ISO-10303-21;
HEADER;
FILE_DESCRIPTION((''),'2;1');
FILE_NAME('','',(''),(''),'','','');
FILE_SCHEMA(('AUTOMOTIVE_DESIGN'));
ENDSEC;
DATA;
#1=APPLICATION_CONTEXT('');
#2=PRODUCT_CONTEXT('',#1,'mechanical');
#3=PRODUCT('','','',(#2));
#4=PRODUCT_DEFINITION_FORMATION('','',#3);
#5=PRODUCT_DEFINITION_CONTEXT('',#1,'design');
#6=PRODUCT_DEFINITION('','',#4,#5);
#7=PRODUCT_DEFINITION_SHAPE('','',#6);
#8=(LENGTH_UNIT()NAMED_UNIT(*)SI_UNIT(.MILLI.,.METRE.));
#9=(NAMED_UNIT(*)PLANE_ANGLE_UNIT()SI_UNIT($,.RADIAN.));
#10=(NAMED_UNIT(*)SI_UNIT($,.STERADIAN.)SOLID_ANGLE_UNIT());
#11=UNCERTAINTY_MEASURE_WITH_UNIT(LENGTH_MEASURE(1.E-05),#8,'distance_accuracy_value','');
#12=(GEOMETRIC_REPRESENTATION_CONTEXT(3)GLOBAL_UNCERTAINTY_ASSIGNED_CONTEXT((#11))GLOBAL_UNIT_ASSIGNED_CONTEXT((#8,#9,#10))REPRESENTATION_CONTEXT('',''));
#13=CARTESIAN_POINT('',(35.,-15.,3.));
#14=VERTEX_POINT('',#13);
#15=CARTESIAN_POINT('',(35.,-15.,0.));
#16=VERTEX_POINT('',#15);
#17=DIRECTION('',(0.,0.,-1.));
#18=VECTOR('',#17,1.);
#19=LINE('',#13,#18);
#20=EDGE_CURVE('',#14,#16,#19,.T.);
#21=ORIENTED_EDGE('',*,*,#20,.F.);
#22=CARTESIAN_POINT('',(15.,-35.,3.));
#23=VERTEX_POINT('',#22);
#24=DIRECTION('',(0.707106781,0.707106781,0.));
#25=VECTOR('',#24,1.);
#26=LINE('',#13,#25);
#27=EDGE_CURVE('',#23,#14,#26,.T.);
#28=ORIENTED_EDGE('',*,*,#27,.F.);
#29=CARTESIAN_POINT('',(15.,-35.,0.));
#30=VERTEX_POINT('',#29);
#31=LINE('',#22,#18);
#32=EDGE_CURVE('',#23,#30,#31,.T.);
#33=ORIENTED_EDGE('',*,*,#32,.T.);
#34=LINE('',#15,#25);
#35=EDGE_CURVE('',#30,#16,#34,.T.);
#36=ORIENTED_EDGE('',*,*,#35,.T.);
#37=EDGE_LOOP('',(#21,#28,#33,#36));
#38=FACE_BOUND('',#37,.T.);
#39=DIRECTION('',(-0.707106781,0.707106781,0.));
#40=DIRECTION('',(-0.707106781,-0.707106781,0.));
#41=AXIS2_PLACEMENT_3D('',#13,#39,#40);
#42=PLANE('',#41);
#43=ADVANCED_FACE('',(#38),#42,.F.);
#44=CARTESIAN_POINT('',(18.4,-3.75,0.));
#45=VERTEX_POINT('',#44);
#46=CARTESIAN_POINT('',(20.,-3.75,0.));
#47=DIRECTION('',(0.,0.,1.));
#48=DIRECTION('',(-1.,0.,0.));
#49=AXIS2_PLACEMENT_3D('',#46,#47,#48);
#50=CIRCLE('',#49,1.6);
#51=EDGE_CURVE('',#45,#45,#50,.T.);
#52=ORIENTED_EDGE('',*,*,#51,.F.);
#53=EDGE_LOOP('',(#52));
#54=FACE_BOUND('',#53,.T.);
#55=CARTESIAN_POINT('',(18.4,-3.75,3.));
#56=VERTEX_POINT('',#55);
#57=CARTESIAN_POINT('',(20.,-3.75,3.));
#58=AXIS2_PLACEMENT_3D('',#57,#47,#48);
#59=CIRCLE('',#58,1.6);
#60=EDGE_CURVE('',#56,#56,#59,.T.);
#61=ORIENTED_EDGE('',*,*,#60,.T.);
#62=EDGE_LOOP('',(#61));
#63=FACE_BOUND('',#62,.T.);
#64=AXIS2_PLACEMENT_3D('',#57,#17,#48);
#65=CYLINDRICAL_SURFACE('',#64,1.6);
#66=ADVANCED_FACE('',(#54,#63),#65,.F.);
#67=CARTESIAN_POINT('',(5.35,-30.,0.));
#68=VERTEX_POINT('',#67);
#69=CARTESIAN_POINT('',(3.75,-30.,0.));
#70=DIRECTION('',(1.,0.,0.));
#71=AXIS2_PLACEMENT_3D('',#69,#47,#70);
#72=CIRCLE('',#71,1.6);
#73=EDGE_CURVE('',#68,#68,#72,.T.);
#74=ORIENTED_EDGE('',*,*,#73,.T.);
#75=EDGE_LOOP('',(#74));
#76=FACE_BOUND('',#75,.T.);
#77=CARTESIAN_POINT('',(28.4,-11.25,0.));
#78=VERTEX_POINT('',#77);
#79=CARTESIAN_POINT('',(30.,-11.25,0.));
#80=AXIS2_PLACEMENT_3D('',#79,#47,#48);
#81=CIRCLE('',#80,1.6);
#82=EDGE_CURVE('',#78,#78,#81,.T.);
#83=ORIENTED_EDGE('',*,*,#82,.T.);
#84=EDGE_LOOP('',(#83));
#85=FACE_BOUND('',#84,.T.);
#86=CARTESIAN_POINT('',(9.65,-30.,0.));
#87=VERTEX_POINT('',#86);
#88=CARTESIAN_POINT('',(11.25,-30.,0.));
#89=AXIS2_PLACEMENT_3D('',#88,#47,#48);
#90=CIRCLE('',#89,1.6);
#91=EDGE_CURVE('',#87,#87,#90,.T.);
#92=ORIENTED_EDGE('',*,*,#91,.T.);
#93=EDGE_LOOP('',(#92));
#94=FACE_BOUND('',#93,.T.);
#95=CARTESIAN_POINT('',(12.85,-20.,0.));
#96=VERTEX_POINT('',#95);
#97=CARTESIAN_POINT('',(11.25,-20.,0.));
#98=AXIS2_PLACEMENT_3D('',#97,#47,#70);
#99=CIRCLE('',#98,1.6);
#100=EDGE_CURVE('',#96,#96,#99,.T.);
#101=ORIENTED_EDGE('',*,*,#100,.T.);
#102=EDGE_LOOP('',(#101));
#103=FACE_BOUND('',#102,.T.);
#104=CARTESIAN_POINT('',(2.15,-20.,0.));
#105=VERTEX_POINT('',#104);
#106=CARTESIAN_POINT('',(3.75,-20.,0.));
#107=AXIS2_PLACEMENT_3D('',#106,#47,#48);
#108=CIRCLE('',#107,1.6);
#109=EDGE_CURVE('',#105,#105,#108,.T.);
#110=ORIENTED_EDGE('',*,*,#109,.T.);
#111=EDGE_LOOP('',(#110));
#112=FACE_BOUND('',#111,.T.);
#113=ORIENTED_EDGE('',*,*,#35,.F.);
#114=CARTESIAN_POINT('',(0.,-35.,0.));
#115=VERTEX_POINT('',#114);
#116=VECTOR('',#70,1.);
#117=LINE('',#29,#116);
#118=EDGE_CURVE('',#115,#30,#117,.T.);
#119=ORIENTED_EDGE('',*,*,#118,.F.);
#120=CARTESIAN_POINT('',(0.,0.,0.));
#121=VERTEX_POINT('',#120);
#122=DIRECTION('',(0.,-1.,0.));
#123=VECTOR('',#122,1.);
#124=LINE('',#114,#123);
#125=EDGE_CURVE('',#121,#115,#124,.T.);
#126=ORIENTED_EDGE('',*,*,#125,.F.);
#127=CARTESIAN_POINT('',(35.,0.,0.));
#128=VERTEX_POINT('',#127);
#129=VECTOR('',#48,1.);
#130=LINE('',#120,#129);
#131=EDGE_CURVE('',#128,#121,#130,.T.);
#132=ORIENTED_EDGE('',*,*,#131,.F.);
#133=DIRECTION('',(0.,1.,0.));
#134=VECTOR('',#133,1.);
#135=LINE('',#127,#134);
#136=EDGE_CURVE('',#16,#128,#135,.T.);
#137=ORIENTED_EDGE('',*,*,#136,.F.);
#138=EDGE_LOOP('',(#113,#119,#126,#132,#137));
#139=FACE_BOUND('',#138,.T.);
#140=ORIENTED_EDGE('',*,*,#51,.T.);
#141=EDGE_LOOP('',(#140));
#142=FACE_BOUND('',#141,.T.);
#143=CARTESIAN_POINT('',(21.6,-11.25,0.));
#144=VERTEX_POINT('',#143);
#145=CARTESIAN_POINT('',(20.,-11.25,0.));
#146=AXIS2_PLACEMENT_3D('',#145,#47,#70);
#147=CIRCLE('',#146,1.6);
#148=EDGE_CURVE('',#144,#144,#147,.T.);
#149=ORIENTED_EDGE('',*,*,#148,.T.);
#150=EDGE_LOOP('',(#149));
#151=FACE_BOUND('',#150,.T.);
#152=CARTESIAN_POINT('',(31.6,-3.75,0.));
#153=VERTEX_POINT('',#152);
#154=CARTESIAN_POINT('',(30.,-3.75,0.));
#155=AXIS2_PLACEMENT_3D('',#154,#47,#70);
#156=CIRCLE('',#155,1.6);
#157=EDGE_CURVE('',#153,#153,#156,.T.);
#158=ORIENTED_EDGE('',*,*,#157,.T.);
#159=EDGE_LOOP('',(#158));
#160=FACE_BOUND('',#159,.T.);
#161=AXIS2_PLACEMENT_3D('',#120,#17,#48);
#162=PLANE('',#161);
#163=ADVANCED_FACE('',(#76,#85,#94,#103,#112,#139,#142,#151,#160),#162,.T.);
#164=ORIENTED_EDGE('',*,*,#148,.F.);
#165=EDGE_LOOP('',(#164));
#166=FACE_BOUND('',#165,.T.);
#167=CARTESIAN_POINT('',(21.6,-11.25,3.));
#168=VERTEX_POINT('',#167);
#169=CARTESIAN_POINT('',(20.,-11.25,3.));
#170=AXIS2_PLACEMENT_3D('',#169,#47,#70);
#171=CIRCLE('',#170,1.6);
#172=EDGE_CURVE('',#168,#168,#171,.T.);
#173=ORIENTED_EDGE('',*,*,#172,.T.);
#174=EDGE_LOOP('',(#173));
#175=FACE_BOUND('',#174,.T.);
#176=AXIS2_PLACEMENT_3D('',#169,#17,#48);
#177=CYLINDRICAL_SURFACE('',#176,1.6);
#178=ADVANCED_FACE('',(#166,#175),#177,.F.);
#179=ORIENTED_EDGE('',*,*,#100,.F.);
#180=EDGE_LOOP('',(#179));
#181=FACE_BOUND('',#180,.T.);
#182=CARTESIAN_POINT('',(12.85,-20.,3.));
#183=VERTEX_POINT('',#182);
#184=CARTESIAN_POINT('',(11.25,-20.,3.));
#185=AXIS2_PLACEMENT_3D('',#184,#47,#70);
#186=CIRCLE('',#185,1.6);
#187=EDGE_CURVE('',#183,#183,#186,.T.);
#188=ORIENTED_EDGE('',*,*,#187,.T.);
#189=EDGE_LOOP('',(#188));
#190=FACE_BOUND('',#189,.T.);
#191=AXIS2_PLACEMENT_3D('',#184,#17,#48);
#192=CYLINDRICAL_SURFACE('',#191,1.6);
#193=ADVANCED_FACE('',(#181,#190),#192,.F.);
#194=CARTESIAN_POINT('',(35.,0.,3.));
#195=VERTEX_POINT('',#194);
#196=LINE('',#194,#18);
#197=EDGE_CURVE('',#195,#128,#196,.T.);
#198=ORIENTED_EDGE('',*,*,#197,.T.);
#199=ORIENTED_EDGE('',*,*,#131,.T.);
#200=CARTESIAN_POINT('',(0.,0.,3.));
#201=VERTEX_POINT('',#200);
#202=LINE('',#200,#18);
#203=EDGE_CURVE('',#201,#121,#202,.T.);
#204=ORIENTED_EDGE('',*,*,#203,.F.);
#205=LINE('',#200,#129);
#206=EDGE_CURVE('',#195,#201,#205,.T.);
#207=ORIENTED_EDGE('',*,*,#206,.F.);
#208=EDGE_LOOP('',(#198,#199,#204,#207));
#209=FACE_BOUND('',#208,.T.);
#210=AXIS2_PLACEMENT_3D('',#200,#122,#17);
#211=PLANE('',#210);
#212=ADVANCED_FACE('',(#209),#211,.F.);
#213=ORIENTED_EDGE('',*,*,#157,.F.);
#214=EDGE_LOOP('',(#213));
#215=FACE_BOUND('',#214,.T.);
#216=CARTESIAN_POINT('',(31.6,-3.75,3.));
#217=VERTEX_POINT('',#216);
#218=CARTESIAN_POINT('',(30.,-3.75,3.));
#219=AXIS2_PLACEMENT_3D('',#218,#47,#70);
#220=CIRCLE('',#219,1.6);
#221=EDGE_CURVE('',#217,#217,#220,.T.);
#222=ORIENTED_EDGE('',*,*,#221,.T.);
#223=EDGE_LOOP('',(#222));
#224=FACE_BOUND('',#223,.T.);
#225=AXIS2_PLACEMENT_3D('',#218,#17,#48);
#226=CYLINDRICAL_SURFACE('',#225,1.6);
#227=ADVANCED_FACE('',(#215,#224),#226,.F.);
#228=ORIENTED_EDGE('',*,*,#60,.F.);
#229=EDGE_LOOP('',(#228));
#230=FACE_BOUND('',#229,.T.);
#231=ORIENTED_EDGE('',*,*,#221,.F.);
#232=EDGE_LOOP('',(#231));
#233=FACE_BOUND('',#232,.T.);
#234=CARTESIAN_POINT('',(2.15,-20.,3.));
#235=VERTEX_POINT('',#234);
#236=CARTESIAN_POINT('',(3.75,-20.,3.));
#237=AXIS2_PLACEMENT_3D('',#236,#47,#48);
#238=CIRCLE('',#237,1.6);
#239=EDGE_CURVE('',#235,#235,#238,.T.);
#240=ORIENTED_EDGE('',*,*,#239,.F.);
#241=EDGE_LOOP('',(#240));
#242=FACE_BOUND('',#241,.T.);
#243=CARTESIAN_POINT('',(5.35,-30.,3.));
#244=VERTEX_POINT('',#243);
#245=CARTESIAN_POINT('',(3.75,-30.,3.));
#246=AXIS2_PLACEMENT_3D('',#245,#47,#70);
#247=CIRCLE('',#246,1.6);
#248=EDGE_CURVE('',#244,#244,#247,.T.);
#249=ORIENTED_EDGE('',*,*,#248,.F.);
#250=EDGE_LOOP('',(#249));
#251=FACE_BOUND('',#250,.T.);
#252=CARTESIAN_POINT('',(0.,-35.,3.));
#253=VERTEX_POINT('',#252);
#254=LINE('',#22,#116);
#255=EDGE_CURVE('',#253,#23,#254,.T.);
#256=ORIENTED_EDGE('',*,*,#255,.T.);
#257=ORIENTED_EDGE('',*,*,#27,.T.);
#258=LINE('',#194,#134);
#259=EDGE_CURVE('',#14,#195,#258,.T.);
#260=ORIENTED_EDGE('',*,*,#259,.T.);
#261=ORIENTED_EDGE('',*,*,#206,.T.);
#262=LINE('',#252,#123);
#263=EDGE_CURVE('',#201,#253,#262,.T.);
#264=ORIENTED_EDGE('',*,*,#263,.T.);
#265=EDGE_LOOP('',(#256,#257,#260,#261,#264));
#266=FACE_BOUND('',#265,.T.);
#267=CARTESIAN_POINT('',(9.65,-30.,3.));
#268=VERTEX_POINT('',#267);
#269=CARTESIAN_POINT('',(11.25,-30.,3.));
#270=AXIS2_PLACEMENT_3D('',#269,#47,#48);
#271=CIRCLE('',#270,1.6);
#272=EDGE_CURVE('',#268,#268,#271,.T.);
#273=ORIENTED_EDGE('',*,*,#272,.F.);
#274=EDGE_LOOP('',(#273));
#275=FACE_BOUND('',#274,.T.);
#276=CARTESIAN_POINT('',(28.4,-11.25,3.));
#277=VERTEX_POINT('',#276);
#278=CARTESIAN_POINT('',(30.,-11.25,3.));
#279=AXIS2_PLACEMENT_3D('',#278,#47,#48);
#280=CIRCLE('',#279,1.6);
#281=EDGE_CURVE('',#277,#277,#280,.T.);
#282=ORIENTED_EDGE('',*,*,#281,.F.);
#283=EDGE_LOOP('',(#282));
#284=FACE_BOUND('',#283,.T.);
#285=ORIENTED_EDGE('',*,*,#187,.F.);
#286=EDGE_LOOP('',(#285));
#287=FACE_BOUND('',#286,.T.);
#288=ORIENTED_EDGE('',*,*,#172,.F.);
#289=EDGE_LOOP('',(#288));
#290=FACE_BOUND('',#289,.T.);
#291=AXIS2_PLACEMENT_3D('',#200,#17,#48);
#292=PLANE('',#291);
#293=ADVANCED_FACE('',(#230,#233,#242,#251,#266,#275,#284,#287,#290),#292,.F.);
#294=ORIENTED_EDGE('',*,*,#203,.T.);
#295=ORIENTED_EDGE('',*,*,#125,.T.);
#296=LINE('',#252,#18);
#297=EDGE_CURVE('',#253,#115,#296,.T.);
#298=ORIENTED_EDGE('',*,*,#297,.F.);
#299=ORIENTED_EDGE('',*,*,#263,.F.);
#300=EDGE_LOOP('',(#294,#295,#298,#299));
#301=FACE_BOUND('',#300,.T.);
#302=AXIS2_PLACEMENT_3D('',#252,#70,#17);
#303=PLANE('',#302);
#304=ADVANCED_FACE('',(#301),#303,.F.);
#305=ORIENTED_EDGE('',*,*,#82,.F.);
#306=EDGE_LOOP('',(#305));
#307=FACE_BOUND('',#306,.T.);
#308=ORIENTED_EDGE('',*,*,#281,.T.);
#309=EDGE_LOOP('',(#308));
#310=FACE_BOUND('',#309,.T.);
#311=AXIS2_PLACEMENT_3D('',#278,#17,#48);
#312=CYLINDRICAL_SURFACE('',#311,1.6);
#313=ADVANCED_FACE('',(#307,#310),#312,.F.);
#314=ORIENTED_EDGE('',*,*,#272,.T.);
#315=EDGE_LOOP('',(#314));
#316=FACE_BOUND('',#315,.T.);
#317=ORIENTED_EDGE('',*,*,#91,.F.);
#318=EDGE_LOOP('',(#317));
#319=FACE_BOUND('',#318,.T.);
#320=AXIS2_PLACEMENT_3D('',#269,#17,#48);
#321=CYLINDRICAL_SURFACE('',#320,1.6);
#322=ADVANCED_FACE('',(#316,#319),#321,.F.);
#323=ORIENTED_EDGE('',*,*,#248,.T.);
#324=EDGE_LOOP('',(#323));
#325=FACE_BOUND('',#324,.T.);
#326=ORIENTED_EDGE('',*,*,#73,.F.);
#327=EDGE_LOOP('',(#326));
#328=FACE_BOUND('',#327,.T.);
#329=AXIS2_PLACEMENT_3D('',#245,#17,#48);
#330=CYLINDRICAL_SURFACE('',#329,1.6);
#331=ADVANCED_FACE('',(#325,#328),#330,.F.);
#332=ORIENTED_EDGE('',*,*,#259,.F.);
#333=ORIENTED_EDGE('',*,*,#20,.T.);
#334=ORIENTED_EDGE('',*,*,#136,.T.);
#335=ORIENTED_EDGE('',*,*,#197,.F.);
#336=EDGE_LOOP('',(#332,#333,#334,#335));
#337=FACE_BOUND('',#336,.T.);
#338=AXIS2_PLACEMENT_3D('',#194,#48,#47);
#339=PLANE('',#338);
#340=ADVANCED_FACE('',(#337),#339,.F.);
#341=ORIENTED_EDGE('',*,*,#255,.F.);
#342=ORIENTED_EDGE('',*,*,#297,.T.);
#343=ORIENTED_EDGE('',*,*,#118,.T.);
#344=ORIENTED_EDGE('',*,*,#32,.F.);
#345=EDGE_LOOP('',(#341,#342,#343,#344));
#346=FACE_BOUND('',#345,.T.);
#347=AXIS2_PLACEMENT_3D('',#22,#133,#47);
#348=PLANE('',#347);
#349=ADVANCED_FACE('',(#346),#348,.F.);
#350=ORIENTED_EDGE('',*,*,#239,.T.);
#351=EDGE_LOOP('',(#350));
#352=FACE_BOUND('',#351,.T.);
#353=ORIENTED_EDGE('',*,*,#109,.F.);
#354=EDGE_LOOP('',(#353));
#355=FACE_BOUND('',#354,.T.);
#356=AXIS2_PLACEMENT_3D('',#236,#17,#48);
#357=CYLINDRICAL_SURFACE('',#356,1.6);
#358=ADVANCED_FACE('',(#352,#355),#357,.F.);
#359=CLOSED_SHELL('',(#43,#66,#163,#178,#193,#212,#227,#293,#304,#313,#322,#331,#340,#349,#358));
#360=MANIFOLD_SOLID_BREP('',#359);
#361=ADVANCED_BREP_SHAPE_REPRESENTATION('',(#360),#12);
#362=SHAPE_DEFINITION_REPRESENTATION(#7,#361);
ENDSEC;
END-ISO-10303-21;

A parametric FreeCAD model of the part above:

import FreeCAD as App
import Part
import Sketcher

V = App.Vector
Q = App.Units.Quantity

doc = App.newDocument("Part")
body = doc.addObject("PartDesign::Body", "Body")

sketch1 = doc.addObject("Sketcher::SketchObject", "Sketch")
body.addObject(sketch1)
sketch1.AttachmentSupport = (doc.XY_Plane, [""])
sketch1.MapMode = "FlatFace"
sketch1.addGeometry([
    Part.LineSegment(V(35, 0, 0), V(0, 0, 0)),
    Part.LineSegment(V(0, 0, 0), V(0, -35, 0)),
    Part.LineSegment(V(0, -35, 0), V(15, -35, 0)),
    Part.LineSegment(V(15, -35, 0), V(35, -15, 0)),
    Part.LineSegment(V(35, -15, 0), V(35, 0, 0)),
    Part.Circle(V(11.25, -30, 0), V(0, 0, 1), 1.6),
    Part.Circle(V(3.75, -30, 0), V(0, 0, 1), 1.6),
    Part.Circle(V(11.25, -20, 0), V(0, 0, 1), 1.6),
    Part.Circle(V(3.75, -20, 0), V(0, 0, 1), 1.6),
    Part.Circle(V(30, -11.25, 0), V(0, 0, 1), 1.6),
    Part.Circle(V(20, -11.25, 0), V(0, 0, 1), 1.6),
    Part.Circle(V(30, -3.75, 0), V(0, 0, 1), 1.6),
    Part.Circle(V(20, -3.75, 0), V(0, 0, 1), 1.6),
], False)
sketch1.addConstraint([
    Sketcher.Constraint("Coincident", 0, 2, 1, 1),
    Sketcher.Constraint("Coincident", 1, 2, 2, 1),
    Sketcher.Constraint("Coincident", 2, 2, 3, 1),
    Sketcher.Constraint("Coincident", 3, 2, 4, 1),
    Sketcher.Constraint("Coincident", 4, 2, 0, 1),
    Sketcher.Constraint("Horizontal", 0),
    Sketcher.Constraint("Vertical", 1),
    Sketcher.Constraint("Horizontal", 2),
    Sketcher.Constraint("Vertical", 4),
    Sketcher.Constraint("Coincident", 0, 2, -1, 1),
    Sketcher.Constraint("Equal", 5, 6),
    Sketcher.Constraint("Equal", 6, 7),
    Sketcher.Constraint("Equal", 7, 8),
    Sketcher.Constraint("Equal", 8, 9),
    Sketcher.Constraint("Equal", 9, 10),
    Sketcher.Constraint("Equal", 10, 11),
    Sketcher.Constraint("Equal", 11, 12),
    Sketcher.Constraint("Horizontal", 5, 3, 6, 3),
    Sketcher.Constraint("Horizontal", 7, 3, 8, 3),
    Sketcher.Constraint("Horizontal", 9, 3, 10, 3),
    Sketcher.Constraint("Horizontal", 11, 3, 12, 3),
    Sketcher.Constraint("Vertical", 5, 3, 7, 3),
    Sketcher.Constraint("Vertical", 6, 3, 8, 3),
    Sketcher.Constraint("Vertical", 9, 3, 11, 3),
    Sketcher.Constraint("Vertical", 10, 3, 12, 3),
    Sketcher.Constraint("Equal", 0, 1),
    Sketcher.Constraint("Equal", 2, 4),
    Sketcher.Constraint("Diameter", 5, Q("3.2 mm")),
    Sketcher.Constraint("DistanceX", 0, 2, 0, 1, Q("35 mm")),
    Sketcher.Constraint("DistanceX", 2, 1, 2, 2, Q("15 mm")),
    Sketcher.Constraint("DistanceY", 5, 3, -1, 1, Q("30 mm")),
    Sketcher.Constraint("DistanceY", 7, 3, -1, 1, Q("20 mm")),
    Sketcher.Constraint("DistanceX", -1, 1, 9, 3, Q("30 mm")),
    Sketcher.Constraint("DistanceX", -1, 1, 10, 3, Q("20 mm")),
    Sketcher.Constraint("DistanceX", 6, 3, 5, 3, Q("7.5 mm")),
    Sketcher.Constraint("DistanceY", 9, 3, 11, 3, Q("7.5 mm")),
    Sketcher.Constraint("DistanceX", -1, 1, 5, 3, Q("11.25 mm")),
    Sketcher.Constraint("DistanceY", 9, 3, -1, 1, Q("11.25 mm")),
])
pad1 = doc.addObject("PartDesign::Pad", "Pad")
body.addObject(pad1)
pad1.Profile = sketch1
pad1.Length = 3

doc.recompute()
